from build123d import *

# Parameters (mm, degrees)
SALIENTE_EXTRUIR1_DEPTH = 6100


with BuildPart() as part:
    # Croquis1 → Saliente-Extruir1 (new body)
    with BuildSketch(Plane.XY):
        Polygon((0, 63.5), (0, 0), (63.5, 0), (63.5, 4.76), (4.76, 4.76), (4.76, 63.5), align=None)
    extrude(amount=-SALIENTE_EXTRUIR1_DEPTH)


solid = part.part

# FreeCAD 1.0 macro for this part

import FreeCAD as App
import Part
import Sketcher
from FreeCAD import Vector


def add_polygon(sketch, points):
    """Adds a closed chain of lines whose ends are joined by coincident constraints."""
    first, n = sketch.GeometryCount, len(points)
    for a, b in zip(points, points[1:] + points[:1]):
        sketch.addGeometry(Part.LineSegment(App.Vector(*a, 0), App.Vector(*b, 0)), False)
    for i in range(n):
        sketch.addConstraint(Sketcher.Constraint("Coincident", first + i, 2, first + (i + 1) % n, 1))

doc = App.newDocument("Part")
params = doc.addObject("Spreadsheet::Sheet", "Params")
for row, (alias, value) in enumerate([
    ("sketch1_width", "63.5 mm"),
    ("sketch1_width2", "58.74 mm"),
    ("pad1_length", "6100 mm"),
], start=1):
    params.set(f"A{row}", alias)
    params.set(f"B{row}", "=" + value)
    params.setAlias(f"B{row}", alias)

body = doc.addObject("PartDesign::Body", "Body")

sketch1 = doc.addObject("Sketcher::SketchObject", "Sketch")
body.addObject(sketch1)
sketch1.AttachmentSupport = (doc.XY_Plane, [""])
sketch1.MapMode = "FlatFace"
add_polygon(sketch1, [(0, 63.5), (0, 0), (63.5, 0), (63.5, 4.76), (4.76, 4.76), (4.76, 63.5)])
sketch1.addConstraint([
    Sketcher.Constraint("Vertical", 0),
    Sketcher.Constraint("Horizontal", 1),
    Sketcher.Constraint("Vertical", 2),
    Sketcher.Constraint("Horizontal", 3),
    Sketcher.Constraint("Vertical", 4),
    Sketcher.Constraint("Horizontal", 5),
    Sketcher.Constraint("Coincident", 0, 2, -1, 1),
    Sketcher.Constraint("Equal", 1, 0),
    Sketcher.Constraint("Equal", 5, 2),
    Sketcher.Constraint("DistanceX", 1, 1, 1, 2, 63.5),
    Sketcher.Constraint("DistanceX", 3, 2, 3, 1, 58.74),
])
sketch1.setExpression("Constraints[15]", "Params.sketch1_width")
sketch1.setExpression("Constraints[16]", "Params.sketch1_width2")
pad1 = doc.addObject("PartDesign::Pad", "Pad")
body.addObject(pad1)
pad1.Profile = sketch1
pad1.setExpression("Length", "Params.pad1_length")
pad1.Reversed = True

doc.recompute()
